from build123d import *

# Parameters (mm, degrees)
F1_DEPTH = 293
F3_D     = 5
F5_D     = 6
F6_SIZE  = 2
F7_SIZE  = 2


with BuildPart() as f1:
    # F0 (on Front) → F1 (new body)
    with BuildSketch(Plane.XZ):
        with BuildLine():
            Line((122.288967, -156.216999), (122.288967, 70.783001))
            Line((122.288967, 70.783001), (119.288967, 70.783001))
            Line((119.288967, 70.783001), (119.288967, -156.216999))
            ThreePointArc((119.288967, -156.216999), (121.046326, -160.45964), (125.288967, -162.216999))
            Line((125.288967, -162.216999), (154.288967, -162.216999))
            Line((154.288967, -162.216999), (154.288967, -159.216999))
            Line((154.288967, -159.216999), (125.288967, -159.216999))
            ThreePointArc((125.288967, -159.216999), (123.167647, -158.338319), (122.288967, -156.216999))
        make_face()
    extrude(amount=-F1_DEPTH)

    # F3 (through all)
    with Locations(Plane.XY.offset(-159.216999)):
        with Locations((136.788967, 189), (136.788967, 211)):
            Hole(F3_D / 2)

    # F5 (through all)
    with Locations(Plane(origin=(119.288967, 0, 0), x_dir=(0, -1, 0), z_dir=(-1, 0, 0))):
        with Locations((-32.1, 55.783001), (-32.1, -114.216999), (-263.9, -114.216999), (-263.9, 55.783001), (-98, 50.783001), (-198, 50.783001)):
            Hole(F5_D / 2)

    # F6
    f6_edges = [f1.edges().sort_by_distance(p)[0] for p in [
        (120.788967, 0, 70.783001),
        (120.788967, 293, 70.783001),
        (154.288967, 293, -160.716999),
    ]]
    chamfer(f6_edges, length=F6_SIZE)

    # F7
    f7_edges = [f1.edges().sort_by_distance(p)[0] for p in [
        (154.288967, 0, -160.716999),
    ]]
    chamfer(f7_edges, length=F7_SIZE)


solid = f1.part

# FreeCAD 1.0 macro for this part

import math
import FreeCAD as App
import Part
import Sketcher
from FreeCAD import Vector
Q = App.Units.Quantity


def edges_at(feature, points):
    """Names of the edges that pass closest to the given points."""
    edges = feature.Shape.Edges
    near = lambda p: min(range(len(edges)), key=lambda i: edges[i].distToShape(Part.Vertex(*p))[0])
    return sorted({f"Edge{near(p) + 1}" for p in points})

doc = App.newDocument("Part")
body = doc.addObject("PartDesign::Body", "Body")

sketch1 = body.newObject("Sketcher::SketchObject", "Sketch")
sketch1.AttachmentSupport = (doc.getObject("XZ_Plane"), [""])
sketch1.MapMode = "FlatFace"
sketch1.addGeometry([
    Part.LineSegment(Vector(122.288967, -156.216999, 0), Vector(122.288967, 70.783001, 0)),
    Part.LineSegment(Vector(122.288967, 70.783001, 0), Vector(119.288967, 70.783001, 0)),
    Part.LineSegment(Vector(119.288967, 70.783001, 0), Vector(119.288967, -156.216999, 0)),
    Part.ArcOfCircle(Part.Circle(Vector(125.288966, -156.217, 0), Vector(0, 0, 1), 5.999999), math.radians(179.99999), math.radians(270.00001)),
    Part.LineSegment(Vector(125.288967, -162.216999, 0), Vector(154.288967, -162.216999, 0)),
    Part.LineSegment(Vector(154.288967, -162.216999, 0), Vector(154.288967, -159.216999, 0)),
    Part.LineSegment(Vector(154.288967, -159.216999, 0), Vector(125.288967, -159.216999, 0)),
    Part.ArcOfCircle(Part.Circle(Vector(125.288968, -156.216998, 0), Vector(0, 0, 1), 3.000001), math.radians(-179.999978), math.radians(-90.000022)),
], False)
sketch1.addConstraint([
    Sketcher.Constraint("Coincident", 0, 2, 1, 1),
    Sketcher.Constraint("Coincident", 1, 2, 2, 1),
    Sketcher.Constraint("Tangent", 2, 2, 3, 1),
    Sketcher.Constraint("Tangent", 3, 2, 4, 1),
    Sketcher.Constraint("Coincident", 4, 2, 5, 1),
    Sketcher.Constraint("Coincident", 5, 2, 6, 1),
    Sketcher.Constraint("Tangent", 6, 2, 7, 2),
    Sketcher.Constraint("Tangent", 7, 1, 0, 1),
    Sketcher.Constraint("Vertical", 0),
    Sketcher.Constraint("Horizontal", 1),
    Sketcher.Constraint("Vertical", 2),
    Sketcher.Constraint("Horizontal", 4),
    Sketcher.Constraint("Vertical", 5),
    Sketcher.Constraint("Horizontal", 6),
    Sketcher.Constraint("Coincident", 7, 3, 3, 3),
    Sketcher.Constraint("Radius", 3, Q("5.999999 mm")),
    Sketcher.Constraint("Radius", 7, Q("3.000001 mm")),
    Sketcher.Constraint("DistanceX", 4, 1, 4, 2, Q("29 mm")),
    Sketcher.Constraint("DistanceY", 0, 1, 0, 2, Q("227 mm")),
    Sketcher.Constraint("DistanceY", 3, 3, -1, 1, Q("156.217 mm")),
    Sketcher.Constraint("DistanceX", -1, 1, 7, 3, Q("125.288968 mm")),
])
pad1 = body.newObject("PartDesign::Pad", "Pad")
pad1.Profile = sketch1
pad1.Length = 293
pad1.Reversed = True

sketch2 = body.newObject("Sketcher::SketchObject", "Sketch001")
sketch2.AttachmentSupport = (doc.getObject("XY_Plane"), [""])
sketch2.MapMode = "FlatFace"
sketch2.AttachmentOffset = App.Placement(Vector(0, 0, -159.216999), App.Rotation())
sketch2.addGeometry([
    Part.Circle(Vector(136.788967, 189, 0), Vector(0, 0, 1), 2.5),
    Part.Circle(Vector(136.788967, 211, 0), Vector(0, 0, 1), 2.5),
], False)
sketch2.addConstraint([
    Sketcher.Constraint("Equal", 0, 1),
    Sketcher.Constraint("Vertical", 0, 3, 1, 3),
    Sketcher.Constraint("Diameter", 0, Q("5 mm")),
    Sketcher.Constraint("DistanceY", -1, 1, 0, 3, Q("189 mm")),
    Sketcher.Constraint("DistanceY", -1, 1, 1, 3, Q("211 mm")),
    Sketcher.Constraint("DistanceX", -1, 1, 0, 3, Q("136.788967 mm")),
])
doc.recompute()
hole = body.newObject("PartDesign::Hole", "Hole")
hole.Profile = sketch2
hole.ThreadType = "None"
hole.Diameter = 5
hole.DepthType = "ThroughAll"

sketch3 = body.newObject("Sketcher::SketchObject", "Sketch002")
sketch3.AttachmentSupport = (doc.getObject("YZ_Plane"), [""])
sketch3.MapMode = "FlatFace"
sketch3.AttachmentOffset = App.Placement(Vector(0, 0, 119.288967), App.Rotation())
sketch3.addGeometry([
    Part.Circle(Vector(32.1, 55.783001, 0), Vector(0, 0, 1), 3),
    Part.Circle(Vector(32.1, -114.216999, 0), Vector(0, 0, 1), 3),
    Part.Circle(Vector(263.9, -114.216999, 0), Vector(0, 0, 1), 3),
    Part.Circle(Vector(263.9, 55.783001, 0), Vector(0, 0, 1), 3),
    Part.Circle(Vector(98, 50.783001, 0), Vector(0, 0, 1), 3),
    Part.Circle(Vector(198, 50.783001, 0), Vector(0, 0, 1), 3),
], False)
sketch3.addConstraint([
    Sketcher.Constraint("Equal", 0, 1),
    Sketcher.Constraint("Equal", 1, 2),
    Sketcher.Constraint("Equal", 2, 3),
    Sketcher.Constraint("Equal", 3, 4),
    Sketcher.Constraint("Equal", 4, 5),
    Sketcher.Constraint("Horizontal", 1, 3, 2, 3),
    Sketcher.Constraint("Horizontal", 0, 3, 3, 3),
    Sketcher.Constraint("Horizontal", 4, 3, 5, 3),
    Sketcher.Constraint("Vertical", 0, 3, 1, 3),
    Sketcher.Constraint("Vertical", 2, 3, 3, 3),
    Sketcher.Constraint("Diameter", 0, Q("6 mm")),
    Sketcher.Constraint("DistanceX", -1, 1, 4, 3, Q("98 mm")),
    Sketcher.Constraint("DistanceX", -1, 1, 5, 3, Q("198 mm")),
    Sketcher.Constraint("DistanceY", 1, 3, 0, 3, Q("170 mm")),
    Sketcher.Constraint("DistanceY", 4, 3, 0, 3, Q("5 mm")),
    Sketcher.Constraint("DistanceX", -1, 1, 0, 3, Q("32.1 mm")),
    Sketcher.Constraint("DistanceX", -1, 1, 2, 3, Q("263.9 mm")),
    Sketcher.Constraint("DistanceY", -1, 1, 0, 3, Q("55.783001 mm")),
])
doc.recompute()
hole2 = body.newObject("PartDesign::Hole", "Hole001")
hole2.Profile = sketch3
hole2.ThreadType = "None"
hole2.Diameter = 6
hole2.DepthType = "ThroughAll"
hole2.Reversed = True
doc.recompute()

chamfer = body.newObject("PartDesign::Chamfer", "Chamfer")
chamfer.Base = (hole2, edges_at(hole2, [(120.789, 0, 70.783), (120.789, 293, 70.783), (154.289, 293, -160.717)]))
chamfer.Size = 2
doc.recompute()

chamfer2 = body.newObject("PartDesign::Chamfer", "Chamfer001")
chamfer2.Base = (chamfer, edges_at(chamfer, [(154.289, 0, -160.717)]))
chamfer2.Size = 2

doc.recompute()
